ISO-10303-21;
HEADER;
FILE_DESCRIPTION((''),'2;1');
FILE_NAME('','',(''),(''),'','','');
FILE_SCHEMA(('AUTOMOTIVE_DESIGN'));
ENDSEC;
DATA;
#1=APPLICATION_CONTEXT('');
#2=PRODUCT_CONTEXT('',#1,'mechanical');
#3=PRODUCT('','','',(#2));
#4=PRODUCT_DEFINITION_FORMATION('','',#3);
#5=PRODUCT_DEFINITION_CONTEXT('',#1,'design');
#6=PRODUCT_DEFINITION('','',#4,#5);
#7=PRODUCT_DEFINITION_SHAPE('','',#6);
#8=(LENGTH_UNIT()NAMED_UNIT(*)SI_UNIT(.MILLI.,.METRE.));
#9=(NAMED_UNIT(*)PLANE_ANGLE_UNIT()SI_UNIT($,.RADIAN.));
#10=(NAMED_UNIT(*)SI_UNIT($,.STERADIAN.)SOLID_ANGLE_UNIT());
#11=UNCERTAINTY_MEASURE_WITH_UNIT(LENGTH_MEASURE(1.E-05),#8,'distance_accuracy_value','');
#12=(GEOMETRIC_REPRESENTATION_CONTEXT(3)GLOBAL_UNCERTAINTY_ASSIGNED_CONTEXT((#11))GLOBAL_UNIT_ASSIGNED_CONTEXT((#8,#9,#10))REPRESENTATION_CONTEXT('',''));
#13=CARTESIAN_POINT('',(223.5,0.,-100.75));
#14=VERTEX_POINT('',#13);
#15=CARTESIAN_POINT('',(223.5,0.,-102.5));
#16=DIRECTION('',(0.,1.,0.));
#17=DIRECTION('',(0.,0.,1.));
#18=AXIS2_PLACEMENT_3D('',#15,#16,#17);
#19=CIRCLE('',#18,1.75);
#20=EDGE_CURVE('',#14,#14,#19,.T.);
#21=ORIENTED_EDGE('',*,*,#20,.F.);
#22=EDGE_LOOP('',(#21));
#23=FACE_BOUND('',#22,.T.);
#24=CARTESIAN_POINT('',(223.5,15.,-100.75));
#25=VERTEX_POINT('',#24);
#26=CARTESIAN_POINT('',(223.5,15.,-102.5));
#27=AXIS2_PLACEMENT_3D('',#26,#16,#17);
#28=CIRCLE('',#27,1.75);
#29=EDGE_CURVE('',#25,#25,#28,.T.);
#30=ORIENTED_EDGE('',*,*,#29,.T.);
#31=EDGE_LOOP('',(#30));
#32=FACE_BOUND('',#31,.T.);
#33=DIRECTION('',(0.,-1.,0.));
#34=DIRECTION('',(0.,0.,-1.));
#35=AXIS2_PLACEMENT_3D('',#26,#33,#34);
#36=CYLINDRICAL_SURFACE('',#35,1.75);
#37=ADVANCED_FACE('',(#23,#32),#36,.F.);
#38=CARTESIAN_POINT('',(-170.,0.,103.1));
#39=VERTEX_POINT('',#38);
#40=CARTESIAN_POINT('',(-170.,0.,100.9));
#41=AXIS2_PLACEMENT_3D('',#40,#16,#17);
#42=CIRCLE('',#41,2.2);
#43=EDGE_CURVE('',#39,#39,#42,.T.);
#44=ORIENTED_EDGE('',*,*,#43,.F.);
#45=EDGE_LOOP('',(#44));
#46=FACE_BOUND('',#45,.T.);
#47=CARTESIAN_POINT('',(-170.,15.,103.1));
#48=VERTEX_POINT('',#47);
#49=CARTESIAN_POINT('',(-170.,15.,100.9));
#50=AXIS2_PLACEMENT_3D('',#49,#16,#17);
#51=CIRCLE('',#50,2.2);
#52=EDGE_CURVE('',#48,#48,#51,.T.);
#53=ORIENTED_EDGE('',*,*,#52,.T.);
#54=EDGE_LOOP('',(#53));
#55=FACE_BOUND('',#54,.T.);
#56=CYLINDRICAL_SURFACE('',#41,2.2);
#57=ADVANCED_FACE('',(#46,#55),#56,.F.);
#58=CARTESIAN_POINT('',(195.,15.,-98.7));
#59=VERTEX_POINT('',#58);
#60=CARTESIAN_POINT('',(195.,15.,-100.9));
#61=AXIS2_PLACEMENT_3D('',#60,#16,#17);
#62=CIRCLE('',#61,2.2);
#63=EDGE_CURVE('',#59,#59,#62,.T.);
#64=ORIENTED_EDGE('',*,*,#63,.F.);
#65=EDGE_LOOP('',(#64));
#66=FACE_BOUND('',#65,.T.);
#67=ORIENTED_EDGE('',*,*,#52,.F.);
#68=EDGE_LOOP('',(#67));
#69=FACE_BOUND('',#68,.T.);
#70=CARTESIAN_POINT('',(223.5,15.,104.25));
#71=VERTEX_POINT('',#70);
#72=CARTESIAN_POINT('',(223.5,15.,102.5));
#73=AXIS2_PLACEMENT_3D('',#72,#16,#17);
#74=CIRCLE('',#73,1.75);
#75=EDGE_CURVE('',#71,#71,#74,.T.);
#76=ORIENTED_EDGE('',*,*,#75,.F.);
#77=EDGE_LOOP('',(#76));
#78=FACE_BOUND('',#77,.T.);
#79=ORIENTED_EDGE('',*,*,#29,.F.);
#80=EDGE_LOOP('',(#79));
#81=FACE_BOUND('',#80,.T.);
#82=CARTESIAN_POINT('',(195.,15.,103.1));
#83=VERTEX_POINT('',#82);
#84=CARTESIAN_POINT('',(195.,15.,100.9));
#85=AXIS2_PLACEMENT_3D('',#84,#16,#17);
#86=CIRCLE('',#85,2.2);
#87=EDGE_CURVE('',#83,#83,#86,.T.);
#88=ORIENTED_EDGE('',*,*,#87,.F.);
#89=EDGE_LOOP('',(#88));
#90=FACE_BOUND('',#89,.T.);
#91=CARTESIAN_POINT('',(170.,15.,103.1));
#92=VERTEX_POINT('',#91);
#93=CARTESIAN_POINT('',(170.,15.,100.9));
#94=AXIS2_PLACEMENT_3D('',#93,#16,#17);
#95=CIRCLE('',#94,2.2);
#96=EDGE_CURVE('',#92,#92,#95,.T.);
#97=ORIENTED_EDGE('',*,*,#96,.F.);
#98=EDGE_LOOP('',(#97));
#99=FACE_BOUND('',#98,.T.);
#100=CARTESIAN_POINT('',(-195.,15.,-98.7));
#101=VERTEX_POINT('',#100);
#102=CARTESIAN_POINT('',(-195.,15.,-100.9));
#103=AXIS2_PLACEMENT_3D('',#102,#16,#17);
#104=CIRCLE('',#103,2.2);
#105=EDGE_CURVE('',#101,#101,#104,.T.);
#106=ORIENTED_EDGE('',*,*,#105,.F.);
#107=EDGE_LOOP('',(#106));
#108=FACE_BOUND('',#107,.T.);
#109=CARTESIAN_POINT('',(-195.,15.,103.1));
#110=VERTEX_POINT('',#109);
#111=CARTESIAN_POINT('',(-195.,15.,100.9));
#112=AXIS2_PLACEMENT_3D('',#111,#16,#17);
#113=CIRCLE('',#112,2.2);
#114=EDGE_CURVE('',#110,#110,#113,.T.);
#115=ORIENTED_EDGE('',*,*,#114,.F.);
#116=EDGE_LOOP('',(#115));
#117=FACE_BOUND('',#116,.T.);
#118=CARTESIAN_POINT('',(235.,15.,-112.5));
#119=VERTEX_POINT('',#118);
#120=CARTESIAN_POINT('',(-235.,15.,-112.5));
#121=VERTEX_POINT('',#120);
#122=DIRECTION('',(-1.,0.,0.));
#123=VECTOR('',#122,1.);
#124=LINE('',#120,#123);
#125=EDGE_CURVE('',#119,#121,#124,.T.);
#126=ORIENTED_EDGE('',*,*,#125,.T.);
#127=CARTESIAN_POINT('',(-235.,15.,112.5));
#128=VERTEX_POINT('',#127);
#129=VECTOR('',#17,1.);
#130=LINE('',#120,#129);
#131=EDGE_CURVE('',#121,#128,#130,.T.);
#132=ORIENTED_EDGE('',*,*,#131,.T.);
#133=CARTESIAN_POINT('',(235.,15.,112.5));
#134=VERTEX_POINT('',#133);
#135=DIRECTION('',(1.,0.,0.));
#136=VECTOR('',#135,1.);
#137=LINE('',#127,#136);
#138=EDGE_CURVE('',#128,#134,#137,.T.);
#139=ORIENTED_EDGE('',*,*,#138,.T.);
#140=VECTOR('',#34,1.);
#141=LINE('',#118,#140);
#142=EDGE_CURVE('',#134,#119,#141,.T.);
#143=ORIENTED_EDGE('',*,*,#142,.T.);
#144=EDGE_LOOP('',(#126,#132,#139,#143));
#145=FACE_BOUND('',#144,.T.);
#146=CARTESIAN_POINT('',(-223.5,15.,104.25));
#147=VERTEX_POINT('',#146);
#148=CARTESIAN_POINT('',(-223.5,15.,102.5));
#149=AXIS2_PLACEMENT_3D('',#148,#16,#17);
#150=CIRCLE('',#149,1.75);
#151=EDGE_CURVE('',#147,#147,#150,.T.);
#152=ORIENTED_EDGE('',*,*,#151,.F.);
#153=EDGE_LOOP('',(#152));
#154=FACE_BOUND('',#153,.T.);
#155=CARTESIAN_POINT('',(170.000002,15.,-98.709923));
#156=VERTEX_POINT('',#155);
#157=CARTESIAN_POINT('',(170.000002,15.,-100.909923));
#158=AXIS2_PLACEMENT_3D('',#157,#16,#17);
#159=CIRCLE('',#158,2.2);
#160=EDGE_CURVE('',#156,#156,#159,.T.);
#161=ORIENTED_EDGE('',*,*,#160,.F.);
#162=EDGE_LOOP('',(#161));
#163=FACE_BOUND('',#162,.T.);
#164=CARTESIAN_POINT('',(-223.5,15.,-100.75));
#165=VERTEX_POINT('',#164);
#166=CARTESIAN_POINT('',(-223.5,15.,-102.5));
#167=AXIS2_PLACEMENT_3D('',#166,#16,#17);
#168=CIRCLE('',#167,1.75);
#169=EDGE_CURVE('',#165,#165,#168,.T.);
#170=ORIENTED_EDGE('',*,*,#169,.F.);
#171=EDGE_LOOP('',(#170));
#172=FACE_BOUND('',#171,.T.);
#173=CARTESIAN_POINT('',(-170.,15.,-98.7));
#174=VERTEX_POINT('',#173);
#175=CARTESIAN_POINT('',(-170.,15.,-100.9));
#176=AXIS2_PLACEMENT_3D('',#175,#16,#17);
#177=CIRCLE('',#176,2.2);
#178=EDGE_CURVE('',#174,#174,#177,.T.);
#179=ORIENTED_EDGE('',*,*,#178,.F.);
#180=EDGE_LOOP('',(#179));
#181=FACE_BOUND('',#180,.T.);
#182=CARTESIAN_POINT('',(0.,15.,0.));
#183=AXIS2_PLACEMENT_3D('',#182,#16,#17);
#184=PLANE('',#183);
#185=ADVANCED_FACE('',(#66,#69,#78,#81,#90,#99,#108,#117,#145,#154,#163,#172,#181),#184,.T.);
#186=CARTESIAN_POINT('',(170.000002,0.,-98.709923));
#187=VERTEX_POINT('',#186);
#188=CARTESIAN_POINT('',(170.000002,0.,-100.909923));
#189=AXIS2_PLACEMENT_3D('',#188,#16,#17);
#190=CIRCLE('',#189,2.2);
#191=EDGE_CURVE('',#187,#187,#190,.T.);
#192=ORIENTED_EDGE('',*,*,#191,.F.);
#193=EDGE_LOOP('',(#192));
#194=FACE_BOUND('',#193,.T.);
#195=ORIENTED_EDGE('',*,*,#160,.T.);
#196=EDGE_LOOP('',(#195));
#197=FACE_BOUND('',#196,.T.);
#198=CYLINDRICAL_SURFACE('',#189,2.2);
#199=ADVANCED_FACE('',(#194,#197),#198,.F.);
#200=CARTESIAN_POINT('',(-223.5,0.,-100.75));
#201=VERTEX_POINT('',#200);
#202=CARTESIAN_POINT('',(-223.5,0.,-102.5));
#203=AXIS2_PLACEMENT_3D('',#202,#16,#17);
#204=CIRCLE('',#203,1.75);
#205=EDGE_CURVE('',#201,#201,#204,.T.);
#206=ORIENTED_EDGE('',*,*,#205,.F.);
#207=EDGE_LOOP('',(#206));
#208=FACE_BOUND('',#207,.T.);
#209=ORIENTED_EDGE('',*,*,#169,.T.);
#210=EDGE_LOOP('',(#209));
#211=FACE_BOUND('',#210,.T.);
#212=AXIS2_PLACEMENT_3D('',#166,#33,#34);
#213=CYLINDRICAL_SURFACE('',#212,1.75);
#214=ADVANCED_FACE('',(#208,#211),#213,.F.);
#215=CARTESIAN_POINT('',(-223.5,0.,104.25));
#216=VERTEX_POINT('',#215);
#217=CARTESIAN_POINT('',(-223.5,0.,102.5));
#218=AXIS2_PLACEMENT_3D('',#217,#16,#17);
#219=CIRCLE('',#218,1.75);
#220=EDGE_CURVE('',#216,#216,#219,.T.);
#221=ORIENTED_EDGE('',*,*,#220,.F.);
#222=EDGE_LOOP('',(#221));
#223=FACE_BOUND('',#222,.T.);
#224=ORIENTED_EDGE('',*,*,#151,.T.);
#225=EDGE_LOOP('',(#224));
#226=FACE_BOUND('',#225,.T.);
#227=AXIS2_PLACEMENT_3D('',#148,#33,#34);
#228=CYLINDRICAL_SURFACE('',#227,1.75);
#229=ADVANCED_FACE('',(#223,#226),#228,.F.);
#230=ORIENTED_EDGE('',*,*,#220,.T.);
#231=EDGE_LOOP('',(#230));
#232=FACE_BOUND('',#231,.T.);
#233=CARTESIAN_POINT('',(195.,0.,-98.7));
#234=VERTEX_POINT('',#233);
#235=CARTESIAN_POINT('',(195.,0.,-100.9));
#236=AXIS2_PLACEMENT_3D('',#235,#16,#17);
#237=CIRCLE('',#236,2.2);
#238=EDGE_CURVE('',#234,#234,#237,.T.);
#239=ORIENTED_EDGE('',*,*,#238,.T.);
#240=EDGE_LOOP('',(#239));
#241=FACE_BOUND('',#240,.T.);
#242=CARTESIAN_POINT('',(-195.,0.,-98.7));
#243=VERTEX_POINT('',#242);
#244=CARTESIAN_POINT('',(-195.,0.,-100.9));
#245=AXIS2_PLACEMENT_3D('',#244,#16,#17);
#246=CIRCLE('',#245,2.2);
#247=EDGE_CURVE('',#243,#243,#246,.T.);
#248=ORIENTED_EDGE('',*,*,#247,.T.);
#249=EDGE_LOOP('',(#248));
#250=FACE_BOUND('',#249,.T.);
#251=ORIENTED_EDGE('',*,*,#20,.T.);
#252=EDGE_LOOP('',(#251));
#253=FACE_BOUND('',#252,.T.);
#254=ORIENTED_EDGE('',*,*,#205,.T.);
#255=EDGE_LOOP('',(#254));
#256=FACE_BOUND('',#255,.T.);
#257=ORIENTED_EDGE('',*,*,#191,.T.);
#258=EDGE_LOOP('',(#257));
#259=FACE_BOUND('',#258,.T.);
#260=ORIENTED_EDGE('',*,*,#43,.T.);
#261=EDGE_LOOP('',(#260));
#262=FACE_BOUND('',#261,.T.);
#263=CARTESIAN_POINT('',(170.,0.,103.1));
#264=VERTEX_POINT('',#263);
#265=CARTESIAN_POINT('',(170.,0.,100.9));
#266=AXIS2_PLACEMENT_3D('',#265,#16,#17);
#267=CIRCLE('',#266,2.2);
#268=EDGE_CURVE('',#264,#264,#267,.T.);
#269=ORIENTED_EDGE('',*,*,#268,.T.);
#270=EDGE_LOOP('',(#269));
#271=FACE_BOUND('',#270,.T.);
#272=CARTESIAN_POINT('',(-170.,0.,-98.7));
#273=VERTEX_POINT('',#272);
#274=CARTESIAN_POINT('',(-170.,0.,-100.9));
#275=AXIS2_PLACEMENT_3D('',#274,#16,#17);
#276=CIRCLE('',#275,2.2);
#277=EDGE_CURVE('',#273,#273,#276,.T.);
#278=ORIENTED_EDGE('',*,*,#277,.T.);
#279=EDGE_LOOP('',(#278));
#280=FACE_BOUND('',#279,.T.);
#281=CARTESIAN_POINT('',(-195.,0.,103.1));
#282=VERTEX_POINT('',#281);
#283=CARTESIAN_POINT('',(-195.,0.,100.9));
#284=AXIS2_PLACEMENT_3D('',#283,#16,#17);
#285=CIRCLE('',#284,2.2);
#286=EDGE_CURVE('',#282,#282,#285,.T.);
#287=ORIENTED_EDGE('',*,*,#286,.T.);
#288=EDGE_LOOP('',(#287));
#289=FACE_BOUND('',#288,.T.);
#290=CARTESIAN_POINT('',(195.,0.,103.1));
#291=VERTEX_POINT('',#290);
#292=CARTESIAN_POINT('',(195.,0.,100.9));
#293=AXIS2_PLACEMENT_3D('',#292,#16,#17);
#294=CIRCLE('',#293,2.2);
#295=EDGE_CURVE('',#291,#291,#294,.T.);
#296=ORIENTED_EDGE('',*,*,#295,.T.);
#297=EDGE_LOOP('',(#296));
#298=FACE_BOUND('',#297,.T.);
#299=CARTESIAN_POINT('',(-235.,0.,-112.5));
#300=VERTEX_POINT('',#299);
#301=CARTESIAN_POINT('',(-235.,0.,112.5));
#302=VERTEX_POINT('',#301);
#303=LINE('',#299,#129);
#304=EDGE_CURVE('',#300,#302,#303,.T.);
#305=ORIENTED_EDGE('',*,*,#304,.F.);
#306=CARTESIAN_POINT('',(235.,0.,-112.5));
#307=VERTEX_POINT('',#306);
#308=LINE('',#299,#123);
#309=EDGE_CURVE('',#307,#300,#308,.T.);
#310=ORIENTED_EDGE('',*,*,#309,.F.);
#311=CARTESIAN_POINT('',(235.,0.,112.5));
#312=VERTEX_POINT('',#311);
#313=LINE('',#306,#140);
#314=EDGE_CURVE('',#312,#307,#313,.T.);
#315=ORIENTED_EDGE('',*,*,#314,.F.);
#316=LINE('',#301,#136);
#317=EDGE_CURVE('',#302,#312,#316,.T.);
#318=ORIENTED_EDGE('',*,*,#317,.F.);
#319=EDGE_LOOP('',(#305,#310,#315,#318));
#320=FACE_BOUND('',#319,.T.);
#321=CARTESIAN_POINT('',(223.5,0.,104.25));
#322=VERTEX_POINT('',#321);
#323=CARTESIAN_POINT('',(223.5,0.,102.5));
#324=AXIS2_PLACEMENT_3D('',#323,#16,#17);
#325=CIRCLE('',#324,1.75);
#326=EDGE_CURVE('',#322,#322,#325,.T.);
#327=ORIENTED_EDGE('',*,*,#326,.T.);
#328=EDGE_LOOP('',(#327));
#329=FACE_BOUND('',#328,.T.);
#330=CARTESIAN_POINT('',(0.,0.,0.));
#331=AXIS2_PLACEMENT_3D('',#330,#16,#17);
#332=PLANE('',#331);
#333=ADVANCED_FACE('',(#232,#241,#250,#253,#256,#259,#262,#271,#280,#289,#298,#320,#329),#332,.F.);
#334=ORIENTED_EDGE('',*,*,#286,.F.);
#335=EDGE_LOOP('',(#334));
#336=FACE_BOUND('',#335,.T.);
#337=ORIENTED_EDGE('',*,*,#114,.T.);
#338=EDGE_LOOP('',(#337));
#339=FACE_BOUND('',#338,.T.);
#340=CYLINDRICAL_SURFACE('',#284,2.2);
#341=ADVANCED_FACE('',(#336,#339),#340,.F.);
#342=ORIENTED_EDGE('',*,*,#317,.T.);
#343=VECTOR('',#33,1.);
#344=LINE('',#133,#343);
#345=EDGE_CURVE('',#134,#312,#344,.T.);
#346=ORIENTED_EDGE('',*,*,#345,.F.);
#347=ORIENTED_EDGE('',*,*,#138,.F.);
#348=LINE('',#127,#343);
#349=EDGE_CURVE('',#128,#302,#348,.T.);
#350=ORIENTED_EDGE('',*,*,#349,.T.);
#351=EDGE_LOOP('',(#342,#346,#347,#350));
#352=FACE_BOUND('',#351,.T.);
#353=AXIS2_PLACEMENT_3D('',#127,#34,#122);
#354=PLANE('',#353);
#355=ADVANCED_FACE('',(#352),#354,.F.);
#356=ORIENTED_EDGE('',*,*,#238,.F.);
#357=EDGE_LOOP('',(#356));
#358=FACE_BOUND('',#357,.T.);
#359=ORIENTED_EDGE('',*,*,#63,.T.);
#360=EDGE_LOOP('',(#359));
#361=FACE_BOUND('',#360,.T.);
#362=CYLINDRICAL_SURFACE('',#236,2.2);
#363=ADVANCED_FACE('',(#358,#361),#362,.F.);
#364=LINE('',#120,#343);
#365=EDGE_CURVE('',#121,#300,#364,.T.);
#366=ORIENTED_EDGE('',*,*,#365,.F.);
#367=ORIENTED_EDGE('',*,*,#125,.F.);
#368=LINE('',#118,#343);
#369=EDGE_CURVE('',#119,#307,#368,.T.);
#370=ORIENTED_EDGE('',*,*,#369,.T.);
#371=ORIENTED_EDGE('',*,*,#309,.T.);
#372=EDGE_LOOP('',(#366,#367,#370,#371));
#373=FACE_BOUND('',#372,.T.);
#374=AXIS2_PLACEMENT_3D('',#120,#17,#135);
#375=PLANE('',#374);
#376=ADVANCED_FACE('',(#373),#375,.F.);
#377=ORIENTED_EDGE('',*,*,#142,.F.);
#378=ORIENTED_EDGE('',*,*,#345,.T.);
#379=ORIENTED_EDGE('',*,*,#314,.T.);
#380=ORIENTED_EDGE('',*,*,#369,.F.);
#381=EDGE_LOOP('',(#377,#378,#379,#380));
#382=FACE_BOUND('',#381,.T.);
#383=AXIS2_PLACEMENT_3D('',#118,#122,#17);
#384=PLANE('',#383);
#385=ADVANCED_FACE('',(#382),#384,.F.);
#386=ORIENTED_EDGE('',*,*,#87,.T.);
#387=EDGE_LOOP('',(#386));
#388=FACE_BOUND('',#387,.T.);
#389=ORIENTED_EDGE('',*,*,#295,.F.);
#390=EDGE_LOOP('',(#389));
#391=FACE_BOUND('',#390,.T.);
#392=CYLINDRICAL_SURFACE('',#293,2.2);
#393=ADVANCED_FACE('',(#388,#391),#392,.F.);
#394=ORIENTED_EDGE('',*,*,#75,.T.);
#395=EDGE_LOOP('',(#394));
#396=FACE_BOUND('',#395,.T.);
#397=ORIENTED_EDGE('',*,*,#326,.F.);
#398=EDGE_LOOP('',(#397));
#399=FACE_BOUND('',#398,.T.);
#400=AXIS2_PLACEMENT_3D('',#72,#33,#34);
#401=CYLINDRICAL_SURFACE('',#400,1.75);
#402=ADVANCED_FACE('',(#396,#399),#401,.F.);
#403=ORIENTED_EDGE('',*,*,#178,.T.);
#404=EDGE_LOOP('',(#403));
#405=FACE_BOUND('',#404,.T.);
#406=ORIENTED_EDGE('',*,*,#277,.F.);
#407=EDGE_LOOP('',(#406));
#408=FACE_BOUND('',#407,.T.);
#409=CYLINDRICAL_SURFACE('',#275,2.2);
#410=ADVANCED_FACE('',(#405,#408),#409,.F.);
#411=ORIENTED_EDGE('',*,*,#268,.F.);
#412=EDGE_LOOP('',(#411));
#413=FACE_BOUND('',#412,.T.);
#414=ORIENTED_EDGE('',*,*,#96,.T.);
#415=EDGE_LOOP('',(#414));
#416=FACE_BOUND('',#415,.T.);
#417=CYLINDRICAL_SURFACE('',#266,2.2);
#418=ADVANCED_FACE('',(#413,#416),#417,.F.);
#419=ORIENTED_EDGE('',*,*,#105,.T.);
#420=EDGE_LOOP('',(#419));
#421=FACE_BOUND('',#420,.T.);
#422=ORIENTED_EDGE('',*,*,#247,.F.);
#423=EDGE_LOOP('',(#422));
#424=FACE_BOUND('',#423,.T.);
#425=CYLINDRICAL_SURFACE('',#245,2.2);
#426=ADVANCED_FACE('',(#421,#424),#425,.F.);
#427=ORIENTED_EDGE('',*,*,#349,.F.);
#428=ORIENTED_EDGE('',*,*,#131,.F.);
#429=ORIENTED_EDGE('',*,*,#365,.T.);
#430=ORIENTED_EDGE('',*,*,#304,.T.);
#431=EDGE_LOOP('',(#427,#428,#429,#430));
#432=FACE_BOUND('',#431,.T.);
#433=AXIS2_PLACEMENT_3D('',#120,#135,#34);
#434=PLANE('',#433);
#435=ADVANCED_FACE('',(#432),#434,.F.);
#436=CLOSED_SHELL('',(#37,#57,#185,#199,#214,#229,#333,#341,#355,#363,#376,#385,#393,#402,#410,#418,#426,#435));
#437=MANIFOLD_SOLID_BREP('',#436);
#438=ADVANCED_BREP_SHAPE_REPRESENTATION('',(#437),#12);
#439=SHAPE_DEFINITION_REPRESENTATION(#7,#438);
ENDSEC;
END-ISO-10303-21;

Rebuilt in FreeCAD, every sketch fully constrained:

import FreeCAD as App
import Part
import Sketcher
Q = App.Units.Quantity

doc = App.newDocument("Part")
body = doc.addObject("PartDesign::Body", "Body")

# Sketch on XZ plane
sketch1 = body.newObject("Sketcher::SketchObject", "Sketch")
sketch1.AttachmentSupport = (doc.getObject("XZ_Plane"), [""])
sketch1.MapMode = "FlatFace"
sketch1.addGeometry([
    Part.LineSegment(App.Vector(-235, -112.5, 0), App.Vector(-235, 112.5, 0)),  # 0
    Part.LineSegment(App.Vector(-235, 112.5, 0), App.Vector(235, 112.5, 0)),  # 1
    Part.LineSegment(App.Vector(235, 112.5, 0), App.Vector(235, -112.5, 0)),  # 2
    Part.LineSegment(App.Vector(235, -112.5, 0), App.Vector(-235, -112.5, 0)),  # 3
    Part.Circle(App.Vector(-223.5, 102.5, 0), App.Vector(0, 0, 1), 1.8),  # 4
    Part.Circle(App.Vector(223.5, 102.5, 0), App.Vector(0, 0, 1), 1.8),  # 5
    Part.Circle(App.Vector(-223.5, -102.5, 0), App.Vector(0, 0, 1), 1.8),  # 6
    Part.Circle(App.Vector(223.5, -102.5, 0), App.Vector(0, 0, 1), 1.8),  # 7
], False)
sketch1.addConstraint([
    Sketcher.Constraint("Coincident", 0, 2, 1, 1),
    Sketcher.Constraint("Coincident", 1, 2, 2, 1),
    Sketcher.Constraint("Coincident", 2, 2, 3, 1),
    Sketcher.Constraint("Coincident", 3, 2, 0, 1),
    Sketcher.Constraint("Vertical", 0),
    Sketcher.Constraint("Horizontal", 1),
    Sketcher.Constraint("Vertical", 2),
    Sketcher.Constraint("Horizontal", 3),
    Sketcher.Constraint("Equal", 4, 5),
    Sketcher.Constraint("Equal", 5, 6),
    Sketcher.Constraint("Equal", 6, 7),
    Sketcher.Constraint("Symmetric", 5, 3, 6, 3, -1, 1),
    Sketcher.Constraint("Symmetric", 4, 3, 7, 3, -1, 1),
    Sketcher.Constraint("Symmetric", 0, 2, 2, 2, -1, 1),
    Sketcher.Constraint("Symmetric", 4, 3, 5, 3, -2),
    Sketcher.Constraint("Diameter", 4, Q("3.5 mm")),
    Sketcher.Constraint("DistanceX", 1, 1, 1, 2, Q("470 mm")),
    Sketcher.Constraint("DistanceY", 0, 1, 0, 2, Q("225 mm")),
    Sketcher.Constraint("DistanceX", 4, 3, 5, 3, Q("447 mm")),
    Sketcher.Constraint("DistanceY", 6, 3, 4, 3, Q("205 mm")),
])
pad1 = body.newObject("PartDesign::Pad", "Pad")
pad1.Profile = sketch1
pad1.Length = 15
pad1.Reversed = True

# Sketch on XZ plane
sketch2 = body.newObject("Sketcher::SketchObject", "Sketch001")
sketch2.AttachmentSupport = (doc.getObject("XZ_Plane"), [""])
sketch2.MapMode = "FlatFace"
sketch2.AttachmentOffset = App.Placement(App.Vector(0, 0, -15), App.Rotation())
sketch2.addGeometry([
    Part.Circle(App.Vector(-195, -100.9, 0), App.Vector(0, 0, 1), 2.2),
    Part.Circle(App.Vector(-170, -100.9, 0), App.Vector(0, 0, 1), 2.2),
    Part.Circle(App.Vector(195, -100.9, 0), App.Vector(0, 0, 1), 2.2),
    Part.Circle(App.Vector(170, -100.9, 0), App.Vector(0, 0, 1), 2.2),
], False)
sketch2.addConstraint([
    Sketcher.Constraint("Equal", 0, 1),
    Sketcher.Constraint("Equal", 1, 2),
    Sketcher.Constraint("Equal", 2, 3),
    Sketcher.Constraint("Symmetric", 0, 3, 2, 3, -2),
    Sketcher.Constraint("Horizontal", 0, 3, 1, 3),
    Sketcher.Constraint("Diameter", 0, Q("4.4 mm")),
    Sketcher.Constraint("DistanceX", 0, 3, -1, 1, Q("195 mm")),
    Sketcher.Constraint("DistanceX", 1, 3, -1, 1, Q("170 mm")),
    Sketcher.Constraint("DistanceX", -1, 1, 3, 3, Q("170.000002 mm")),
    Sketcher.Constraint("DistanceY", 0, 3, -1, 1, Q("100.9 mm")),
    Sketcher.Constraint("DistanceY", 3, 3, -1, 1, Q("100.909923 mm")),
])
pocket1 = body.newObject("PartDesign::Pocket", "Pocket")
pocket1.Profile = sketch2
pocket1.Type = "ThroughAll"
pocket1.Reversed = True

# Sketch on XZ plane
sketch3 = body.newObject("Sketcher::SketchObject", "Sketch002")
sketch3.AttachmentSupport = (doc.getObject("XZ_Plane"), [""])
sketch3.MapMode = "FlatFace"
sketch3.AttachmentOffset = App.Placement(App.Vector(0, 0, -15), App.Rotation())
sketch3.addGeometry([
    Part.Circle(App.Vector(-195, 100.9, 0), App.Vector(0, 0, 1), 2.2),
    Part.Circle(App.Vector(195, 100.9, 0), App.Vector(0, 0, 1), 2.2),
    Part.Circle(App.Vector(-170, 100.9, 0), App.Vector(0, 0, 1), 2.2),
    Part.Circle(App.Vector(170, 100.9, 0), App.Vector(0, 0, 1), 2.2),
], False)
sketch3.addConstraint([
    Sketcher.Constraint("Equal", 0, 1),
    Sketcher.Constraint("Equal", 1, 2),
    Sketcher.Constraint("Equal", 2, 3),
    Sketcher.Constraint("Symmetric", 0, 3, 1, 3, -2),
    Sketcher.Constraint("Symmetric", 2, 3, 3, 3, -2),
    Sketcher.Constraint("Horizontal", 1, 3, 2, 3),
    Sketcher.Constraint("Diameter", 0, Q("4.4 mm")),
    Sketcher.Constraint("DistanceX", 0, 3, -1, 1, Q("195 mm")),
    Sketcher.Constraint("DistanceX", 2, 3, -1, 1, Q("170 mm")),
    Sketcher.Constraint("DistanceY", -1, 1, 0, 3, Q("100.9 mm")),
])
pocket2 = body.newObject("PartDesign::Pocket", "Pocket001")
pocket2.Profile = sketch3
pocket2.Type = "ThroughAll"
pocket2.Reversed = True

doc.recompute()
